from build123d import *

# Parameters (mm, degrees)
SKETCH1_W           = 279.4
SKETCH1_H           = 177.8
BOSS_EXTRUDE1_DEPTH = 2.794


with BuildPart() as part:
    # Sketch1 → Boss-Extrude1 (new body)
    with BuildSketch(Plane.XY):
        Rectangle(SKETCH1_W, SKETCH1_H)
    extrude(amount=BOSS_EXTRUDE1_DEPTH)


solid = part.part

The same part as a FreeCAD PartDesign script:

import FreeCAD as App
import Part
import Sketcher

V = App.Vector
Q = App.Units.Quantity


def add_polygon(sketch, points):
    """Adds a closed chain of lines whose ends are joined by coincident constraints."""
    first, n = sketch.GeometryCount, len(points)
    for a, b in zip(points, points[1:] + points[:1]):
        sketch.addGeometry(Part.LineSegment(App.Vector(*a, 0), App.Vector(*b, 0)), False)
    for i in range(n):
        sketch.addConstraint(Sketcher.Constraint("Coincident", first + i, 2, first + (i + 1) % n, 1))

doc = App.newDocument("Part")
body = doc.addObject("PartDesign::Body", "Body")

# Sketch on XY plane
sketch1 = body.newObject("Sketcher::SketchObject", "Sketch")
sketch1.AttachmentSupport = (doc.getObject("XY_Plane"), [""])
sketch1.MapMode = "FlatFace"
add_polygon(sketch1, [(-140, 89), (-140, -89), (140, -89), (140, 89)])  # lines 0-3
sketch1.addConstraint(Sketcher.Constraint("Vertical", 0))
sketch1.addConstraint(Sketcher.Constraint("Horizontal", 1))
sketch1.addConstraint(Sketcher.Constraint("Vertical", 2))
sketch1.addConstraint(Sketcher.Constraint("Horizontal", 3))
sketch1.addConstraint(Sketcher.Constraint("Symmetric", 0, 2, 2, 2, -1, 1))
sketch1.addConstraint(Sketcher.Constraint("DistanceX", 1, 1, 1, 2, Q("11 in")))
sketch1.addConstraint(Sketcher.Constraint("DistanceY", 0, 2, 0, 1, Q("7 in")))
pad1 = body.newObject("PartDesign::Pad", "Pad")
pad1.Profile = sketch1
pad1.Length = Q("0.11 in")

doc.recompute()
